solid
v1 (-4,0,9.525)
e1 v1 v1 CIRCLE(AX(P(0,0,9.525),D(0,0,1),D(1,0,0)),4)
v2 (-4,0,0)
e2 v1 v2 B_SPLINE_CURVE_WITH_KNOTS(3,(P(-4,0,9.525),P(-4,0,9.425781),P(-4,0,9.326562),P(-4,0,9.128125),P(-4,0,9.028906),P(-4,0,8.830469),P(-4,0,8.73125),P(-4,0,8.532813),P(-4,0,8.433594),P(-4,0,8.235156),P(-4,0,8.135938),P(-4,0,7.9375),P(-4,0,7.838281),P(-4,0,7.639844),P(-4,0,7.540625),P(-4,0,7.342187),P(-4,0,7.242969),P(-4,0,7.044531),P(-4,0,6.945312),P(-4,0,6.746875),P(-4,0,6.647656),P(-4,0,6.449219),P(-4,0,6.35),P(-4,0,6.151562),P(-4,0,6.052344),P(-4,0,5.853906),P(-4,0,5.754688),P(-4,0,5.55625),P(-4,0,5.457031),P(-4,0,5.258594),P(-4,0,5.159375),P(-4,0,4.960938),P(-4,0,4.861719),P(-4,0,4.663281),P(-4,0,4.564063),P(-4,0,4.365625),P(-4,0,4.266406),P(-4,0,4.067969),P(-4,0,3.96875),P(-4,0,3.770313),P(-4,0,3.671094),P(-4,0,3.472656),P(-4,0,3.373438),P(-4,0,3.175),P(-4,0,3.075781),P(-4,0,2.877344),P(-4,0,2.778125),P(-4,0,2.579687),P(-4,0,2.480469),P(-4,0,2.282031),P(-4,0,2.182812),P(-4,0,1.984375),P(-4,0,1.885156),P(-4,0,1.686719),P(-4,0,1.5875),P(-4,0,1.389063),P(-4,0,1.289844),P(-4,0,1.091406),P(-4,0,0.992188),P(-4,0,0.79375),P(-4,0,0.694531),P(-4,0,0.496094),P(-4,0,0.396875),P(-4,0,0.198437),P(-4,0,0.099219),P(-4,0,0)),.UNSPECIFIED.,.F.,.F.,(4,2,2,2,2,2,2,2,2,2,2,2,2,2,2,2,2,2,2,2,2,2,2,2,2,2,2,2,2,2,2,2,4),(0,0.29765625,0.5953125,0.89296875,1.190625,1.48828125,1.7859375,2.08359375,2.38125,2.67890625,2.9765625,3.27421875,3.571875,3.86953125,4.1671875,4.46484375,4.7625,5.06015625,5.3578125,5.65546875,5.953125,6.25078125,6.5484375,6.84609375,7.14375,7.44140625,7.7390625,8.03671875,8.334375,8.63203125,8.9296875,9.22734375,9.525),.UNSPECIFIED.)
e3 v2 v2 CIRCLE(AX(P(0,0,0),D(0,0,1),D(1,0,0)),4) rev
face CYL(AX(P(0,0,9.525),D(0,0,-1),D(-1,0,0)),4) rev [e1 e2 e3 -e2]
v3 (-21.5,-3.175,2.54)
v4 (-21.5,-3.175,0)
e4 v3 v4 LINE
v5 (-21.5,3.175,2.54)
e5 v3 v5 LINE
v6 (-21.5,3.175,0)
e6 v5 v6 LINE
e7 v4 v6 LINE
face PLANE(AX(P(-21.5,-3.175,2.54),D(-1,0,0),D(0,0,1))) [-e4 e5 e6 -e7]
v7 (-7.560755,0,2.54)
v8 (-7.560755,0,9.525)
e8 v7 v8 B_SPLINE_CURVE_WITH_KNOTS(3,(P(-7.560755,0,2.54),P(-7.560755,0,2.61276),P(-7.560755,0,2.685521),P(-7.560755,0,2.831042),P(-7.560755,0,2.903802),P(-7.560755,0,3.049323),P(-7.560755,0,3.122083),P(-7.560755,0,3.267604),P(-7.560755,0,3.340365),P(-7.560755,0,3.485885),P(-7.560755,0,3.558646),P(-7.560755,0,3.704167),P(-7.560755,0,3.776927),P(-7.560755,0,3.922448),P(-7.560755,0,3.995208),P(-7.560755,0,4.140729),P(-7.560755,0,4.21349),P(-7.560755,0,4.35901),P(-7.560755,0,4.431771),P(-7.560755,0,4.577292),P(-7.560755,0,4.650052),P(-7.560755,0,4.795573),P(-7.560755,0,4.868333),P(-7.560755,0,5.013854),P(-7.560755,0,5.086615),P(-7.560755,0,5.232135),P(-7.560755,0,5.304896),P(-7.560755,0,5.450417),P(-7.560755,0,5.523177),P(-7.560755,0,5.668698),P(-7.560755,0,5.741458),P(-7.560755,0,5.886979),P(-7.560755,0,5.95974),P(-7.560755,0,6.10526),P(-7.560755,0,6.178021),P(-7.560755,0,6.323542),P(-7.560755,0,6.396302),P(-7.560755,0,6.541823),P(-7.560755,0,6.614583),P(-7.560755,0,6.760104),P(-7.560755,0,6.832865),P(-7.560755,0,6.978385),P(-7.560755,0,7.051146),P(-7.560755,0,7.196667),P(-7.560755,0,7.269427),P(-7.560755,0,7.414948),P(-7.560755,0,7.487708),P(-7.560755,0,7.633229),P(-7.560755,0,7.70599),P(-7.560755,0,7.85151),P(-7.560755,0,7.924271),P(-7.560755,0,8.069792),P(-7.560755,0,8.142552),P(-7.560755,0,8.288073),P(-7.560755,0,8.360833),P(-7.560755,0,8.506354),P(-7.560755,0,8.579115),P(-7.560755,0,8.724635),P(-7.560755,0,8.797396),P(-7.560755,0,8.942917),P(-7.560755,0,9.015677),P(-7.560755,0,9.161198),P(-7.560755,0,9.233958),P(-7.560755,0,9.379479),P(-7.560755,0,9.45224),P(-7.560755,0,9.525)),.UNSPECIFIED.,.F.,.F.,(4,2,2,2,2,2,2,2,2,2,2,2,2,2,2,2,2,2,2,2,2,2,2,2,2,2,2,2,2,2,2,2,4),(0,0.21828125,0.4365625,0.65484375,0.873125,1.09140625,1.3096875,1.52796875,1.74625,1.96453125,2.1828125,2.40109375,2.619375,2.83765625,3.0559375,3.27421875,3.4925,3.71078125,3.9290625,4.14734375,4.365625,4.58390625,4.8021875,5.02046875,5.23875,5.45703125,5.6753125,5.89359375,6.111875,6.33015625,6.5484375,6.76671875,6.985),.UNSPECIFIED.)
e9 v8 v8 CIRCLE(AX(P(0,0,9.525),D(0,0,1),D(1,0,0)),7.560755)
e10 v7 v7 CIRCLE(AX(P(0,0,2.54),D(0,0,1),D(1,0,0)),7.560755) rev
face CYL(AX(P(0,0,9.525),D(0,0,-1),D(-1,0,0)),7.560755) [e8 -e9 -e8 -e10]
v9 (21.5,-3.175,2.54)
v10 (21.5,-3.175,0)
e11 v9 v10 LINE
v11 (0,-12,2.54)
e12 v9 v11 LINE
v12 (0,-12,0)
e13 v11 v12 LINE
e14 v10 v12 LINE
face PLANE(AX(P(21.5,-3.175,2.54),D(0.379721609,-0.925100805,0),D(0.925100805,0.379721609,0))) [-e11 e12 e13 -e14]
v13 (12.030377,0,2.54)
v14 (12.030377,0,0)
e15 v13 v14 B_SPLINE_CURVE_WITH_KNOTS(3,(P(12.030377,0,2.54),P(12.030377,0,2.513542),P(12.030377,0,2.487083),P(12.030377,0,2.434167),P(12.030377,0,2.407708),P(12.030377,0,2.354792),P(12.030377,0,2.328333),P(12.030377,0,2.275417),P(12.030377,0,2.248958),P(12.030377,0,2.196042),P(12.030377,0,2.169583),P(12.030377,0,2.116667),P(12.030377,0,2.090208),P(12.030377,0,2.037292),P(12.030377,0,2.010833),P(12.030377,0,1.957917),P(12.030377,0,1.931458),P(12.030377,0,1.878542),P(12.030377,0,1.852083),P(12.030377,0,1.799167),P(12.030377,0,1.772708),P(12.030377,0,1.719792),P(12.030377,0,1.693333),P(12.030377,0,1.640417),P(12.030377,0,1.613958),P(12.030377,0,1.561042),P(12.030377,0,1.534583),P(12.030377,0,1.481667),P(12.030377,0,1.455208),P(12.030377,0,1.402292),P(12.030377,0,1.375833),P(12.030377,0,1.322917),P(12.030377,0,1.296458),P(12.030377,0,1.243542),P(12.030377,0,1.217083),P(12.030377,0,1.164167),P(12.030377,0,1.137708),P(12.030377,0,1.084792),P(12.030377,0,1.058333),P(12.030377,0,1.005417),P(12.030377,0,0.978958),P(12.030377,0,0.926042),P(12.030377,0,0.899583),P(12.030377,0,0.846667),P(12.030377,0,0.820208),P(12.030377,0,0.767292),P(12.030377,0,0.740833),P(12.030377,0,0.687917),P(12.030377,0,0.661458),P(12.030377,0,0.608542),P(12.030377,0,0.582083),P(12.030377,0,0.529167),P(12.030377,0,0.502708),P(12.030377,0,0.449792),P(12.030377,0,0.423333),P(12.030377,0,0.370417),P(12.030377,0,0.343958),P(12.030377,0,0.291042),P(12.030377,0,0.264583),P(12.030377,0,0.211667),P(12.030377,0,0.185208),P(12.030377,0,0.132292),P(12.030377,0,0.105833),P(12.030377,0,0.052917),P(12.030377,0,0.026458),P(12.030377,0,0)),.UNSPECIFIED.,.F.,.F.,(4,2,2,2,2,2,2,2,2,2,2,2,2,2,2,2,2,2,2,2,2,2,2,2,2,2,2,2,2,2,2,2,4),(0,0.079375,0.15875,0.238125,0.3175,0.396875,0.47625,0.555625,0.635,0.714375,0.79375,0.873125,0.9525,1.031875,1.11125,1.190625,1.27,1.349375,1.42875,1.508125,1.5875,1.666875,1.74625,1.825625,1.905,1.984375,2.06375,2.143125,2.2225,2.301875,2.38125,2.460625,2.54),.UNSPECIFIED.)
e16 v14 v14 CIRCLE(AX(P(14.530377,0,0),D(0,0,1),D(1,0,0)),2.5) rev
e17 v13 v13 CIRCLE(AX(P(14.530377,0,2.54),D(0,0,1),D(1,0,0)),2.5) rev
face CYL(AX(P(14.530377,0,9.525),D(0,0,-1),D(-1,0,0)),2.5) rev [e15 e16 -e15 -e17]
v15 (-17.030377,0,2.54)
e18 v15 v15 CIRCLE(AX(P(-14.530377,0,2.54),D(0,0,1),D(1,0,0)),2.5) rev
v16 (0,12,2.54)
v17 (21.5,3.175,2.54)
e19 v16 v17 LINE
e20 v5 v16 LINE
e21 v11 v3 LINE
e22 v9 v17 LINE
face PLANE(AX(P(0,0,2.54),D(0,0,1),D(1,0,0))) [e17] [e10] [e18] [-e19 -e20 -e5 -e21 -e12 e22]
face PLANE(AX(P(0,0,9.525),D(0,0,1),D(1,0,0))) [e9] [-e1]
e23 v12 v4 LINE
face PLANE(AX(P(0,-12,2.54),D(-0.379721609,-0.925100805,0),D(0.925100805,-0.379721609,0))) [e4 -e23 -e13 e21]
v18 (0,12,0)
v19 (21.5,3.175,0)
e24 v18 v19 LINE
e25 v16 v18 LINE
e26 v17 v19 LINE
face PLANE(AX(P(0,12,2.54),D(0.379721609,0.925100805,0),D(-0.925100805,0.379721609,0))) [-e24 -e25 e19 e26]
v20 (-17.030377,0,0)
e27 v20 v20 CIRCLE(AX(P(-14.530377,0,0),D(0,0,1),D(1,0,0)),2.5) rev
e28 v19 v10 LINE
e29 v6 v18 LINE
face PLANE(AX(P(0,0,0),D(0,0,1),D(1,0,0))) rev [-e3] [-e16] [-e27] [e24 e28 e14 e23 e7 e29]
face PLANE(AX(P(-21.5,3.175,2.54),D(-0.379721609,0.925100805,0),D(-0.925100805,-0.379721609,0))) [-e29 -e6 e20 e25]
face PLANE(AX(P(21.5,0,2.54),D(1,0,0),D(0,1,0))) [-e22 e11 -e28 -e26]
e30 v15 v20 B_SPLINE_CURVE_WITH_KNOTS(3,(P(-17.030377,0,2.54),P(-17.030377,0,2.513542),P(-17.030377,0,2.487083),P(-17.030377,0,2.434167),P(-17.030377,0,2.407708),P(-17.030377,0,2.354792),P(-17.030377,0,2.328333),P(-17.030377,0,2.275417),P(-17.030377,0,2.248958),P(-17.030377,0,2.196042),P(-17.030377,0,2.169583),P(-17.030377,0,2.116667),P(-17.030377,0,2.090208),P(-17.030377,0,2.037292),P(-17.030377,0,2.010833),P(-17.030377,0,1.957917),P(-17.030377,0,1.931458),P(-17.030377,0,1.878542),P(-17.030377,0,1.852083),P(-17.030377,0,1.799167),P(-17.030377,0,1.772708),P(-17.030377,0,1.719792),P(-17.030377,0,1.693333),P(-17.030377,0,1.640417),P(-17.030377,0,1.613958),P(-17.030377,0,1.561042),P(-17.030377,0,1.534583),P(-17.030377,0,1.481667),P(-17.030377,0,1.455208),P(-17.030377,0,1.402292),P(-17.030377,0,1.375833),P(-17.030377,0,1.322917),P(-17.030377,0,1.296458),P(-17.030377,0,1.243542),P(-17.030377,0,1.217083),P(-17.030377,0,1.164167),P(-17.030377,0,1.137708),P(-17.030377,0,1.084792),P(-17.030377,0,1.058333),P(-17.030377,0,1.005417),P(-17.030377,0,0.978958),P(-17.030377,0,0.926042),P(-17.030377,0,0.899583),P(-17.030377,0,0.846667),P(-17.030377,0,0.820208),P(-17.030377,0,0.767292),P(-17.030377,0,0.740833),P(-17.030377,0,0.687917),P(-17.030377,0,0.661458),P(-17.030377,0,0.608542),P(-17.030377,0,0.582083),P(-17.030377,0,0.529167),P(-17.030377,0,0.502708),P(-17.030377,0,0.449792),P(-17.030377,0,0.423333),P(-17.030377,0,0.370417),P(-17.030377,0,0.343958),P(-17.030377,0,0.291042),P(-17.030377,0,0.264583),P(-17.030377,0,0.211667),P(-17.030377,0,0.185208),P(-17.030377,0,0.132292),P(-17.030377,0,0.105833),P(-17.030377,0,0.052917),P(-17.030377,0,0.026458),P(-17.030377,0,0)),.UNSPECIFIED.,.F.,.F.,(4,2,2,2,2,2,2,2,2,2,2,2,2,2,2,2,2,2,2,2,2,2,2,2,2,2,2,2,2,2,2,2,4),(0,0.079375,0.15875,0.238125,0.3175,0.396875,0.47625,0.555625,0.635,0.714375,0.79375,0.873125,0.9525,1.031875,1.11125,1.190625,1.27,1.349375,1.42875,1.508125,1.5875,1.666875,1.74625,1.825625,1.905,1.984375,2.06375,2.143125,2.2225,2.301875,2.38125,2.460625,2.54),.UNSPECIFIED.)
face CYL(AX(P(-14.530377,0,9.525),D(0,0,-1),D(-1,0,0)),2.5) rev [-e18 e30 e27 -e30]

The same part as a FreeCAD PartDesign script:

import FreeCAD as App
import Part
import Sketcher
Q = App.Units.Quantity


def add_polygon(sketch, points):
    """Adds a closed chain of lines whose ends are joined by coincident constraints."""
    first, n = sketch.GeometryCount, len(points)
    for a, b in zip(points, points[1:] + points[:1]):
        sketch.addGeometry(Part.LineSegment(App.Vector(*a, 0), App.Vector(*b, 0)), False)
    for i in range(n):
        sketch.addConstraint(Sketcher.Constraint("Coincident", first + i, 2, first + (i + 1) % n, 1))

doc = App.newDocument("Part")
params = doc.addObject("Spreadsheet::Sheet", "Params")
for row, (alias, value) in enumerate([
    ("sketch1_height", "0.25 in"),
    ("pad1_length", "0.1 in"),
    ("pad2_length", "0.375 in"),
], start=1):
    params.set(f"A{row}", alias)
    params.set(f"B{row}", "=" + value)
    params.setAlias(f"B{row}", alias)

body = doc.addObject("PartDesign::Body", "Body")

sketch1 = doc.addObject("Sketcher::SketchObject", "Sketch")
body.addObject(sketch1)
sketch1.AttachmentSupport = (doc.XY_Plane, [""])
sketch1.MapMode = "FlatFace"
add_polygon(sketch1, [(0, 12), (-21.5, 3.175), (-21.5, -3.175), (0, -12), (21.5, -3.175), (21.5, 3.175)])
sketch1.addConstraint([
    Sketcher.Constraint("Vertical", 1),
    Sketcher.Constraint("Vertical", 4),
    Sketcher.Constraint("Symmetric", 0, 2, 3, 2, -1, 1),
    Sketcher.Constraint("Symmetric", 2, 2, 5, 2, -1, 1),
    Sketcher.Constraint("PointOnObject", 2, 2, -2),
    Sketcher.Constraint("Parallel", 2, 5),
    Sketcher.Constraint("Horizontal", 1, 2, 3, 2),
    Sketcher.Constraint("DistanceY", 1, 2, 1, 1, Q("0.25 in")),
    Sketcher.Constraint("DistanceX", 0, 2, -1, 1, Q("21.5 mm")),
    Sketcher.Constraint("DistanceY", 2, 2, -1, 1, Q("12 mm")),
])
sketch1.setExpression("Constraints[13]", "Params.sketch1_height")
pad1 = doc.addObject("PartDesign::Pad", "Pad")
body.addObject(pad1)
pad1.Profile = sketch1
pad1.setExpression("Length", "Params.pad1_length")

sketch2 = doc.addObject("Sketcher::SketchObject", "Sketch001")
body.addObject(sketch2)
sketch2.AttachmentSupport = (doc.XY_Plane, [""])
sketch2.MapMode = "FlatFace"
sketch2.addGeometry(Part.Circle(App.Vector(0, 0, 0), App.Vector(0, 0, 1), 7.560755), False)
sketch2.addConstraint([
    Sketcher.Constraint("Coincident", 0, 3, -1, 1),
    Sketcher.Constraint("Diameter", 0, Q("15.121509 mm")),
])
pad2 = doc.addObject("PartDesign::Pad", "Pad001")
body.addObject(pad2)
pad2.Profile = sketch2
pad2.setExpression("Length", "Params.pad2_length")

sketch3 = doc.addObject("Sketcher::SketchObject", "Sketch002")
body.addObject(sketch3)
sketch3.AttachmentSupport = (doc.XY_Plane, [""])
sketch3.MapMode = "FlatFace"
sketch3.addGeometry([
    Part.Circle(App.Vector(0, 0, 0), App.Vector(0, 0, 1), 4),
    Part.Circle(App.Vector(14.530377, 0, 0), App.Vector(0, 0, 1), 2.5),
    Part.Circle(App.Vector(-14.530377, 0, 0), App.Vector(0, 0, 1), 2.5),
], False)
sketch3.addConstraint([
    Sketcher.Constraint("Coincident", 0, 3, -1, 1),
    Sketcher.Constraint("Equal", 1, 2),
    Sketcher.Constraint("Symmetric", 1, 3, 2, 3, -1, 1),
    Sketcher.Constraint("PointOnObject", 1, 3, -1),
    Sketcher.Constraint("Diameter", 0, Q("8 mm")),
    Sketcher.Constraint("Diameter", 1, Q("5 mm")),
    Sketcher.Constraint("DistanceX", -1, 1, 1, 3, Q("14.530377 mm")),
])
pocket1 = doc.addObject("PartDesign::Pocket", "Pocket")
body.addObject(pocket1)
pocket1.Profile = sketch3
pocket1.Type = "ThroughAll"
pocket1.Midplane = True

doc.recompute()
